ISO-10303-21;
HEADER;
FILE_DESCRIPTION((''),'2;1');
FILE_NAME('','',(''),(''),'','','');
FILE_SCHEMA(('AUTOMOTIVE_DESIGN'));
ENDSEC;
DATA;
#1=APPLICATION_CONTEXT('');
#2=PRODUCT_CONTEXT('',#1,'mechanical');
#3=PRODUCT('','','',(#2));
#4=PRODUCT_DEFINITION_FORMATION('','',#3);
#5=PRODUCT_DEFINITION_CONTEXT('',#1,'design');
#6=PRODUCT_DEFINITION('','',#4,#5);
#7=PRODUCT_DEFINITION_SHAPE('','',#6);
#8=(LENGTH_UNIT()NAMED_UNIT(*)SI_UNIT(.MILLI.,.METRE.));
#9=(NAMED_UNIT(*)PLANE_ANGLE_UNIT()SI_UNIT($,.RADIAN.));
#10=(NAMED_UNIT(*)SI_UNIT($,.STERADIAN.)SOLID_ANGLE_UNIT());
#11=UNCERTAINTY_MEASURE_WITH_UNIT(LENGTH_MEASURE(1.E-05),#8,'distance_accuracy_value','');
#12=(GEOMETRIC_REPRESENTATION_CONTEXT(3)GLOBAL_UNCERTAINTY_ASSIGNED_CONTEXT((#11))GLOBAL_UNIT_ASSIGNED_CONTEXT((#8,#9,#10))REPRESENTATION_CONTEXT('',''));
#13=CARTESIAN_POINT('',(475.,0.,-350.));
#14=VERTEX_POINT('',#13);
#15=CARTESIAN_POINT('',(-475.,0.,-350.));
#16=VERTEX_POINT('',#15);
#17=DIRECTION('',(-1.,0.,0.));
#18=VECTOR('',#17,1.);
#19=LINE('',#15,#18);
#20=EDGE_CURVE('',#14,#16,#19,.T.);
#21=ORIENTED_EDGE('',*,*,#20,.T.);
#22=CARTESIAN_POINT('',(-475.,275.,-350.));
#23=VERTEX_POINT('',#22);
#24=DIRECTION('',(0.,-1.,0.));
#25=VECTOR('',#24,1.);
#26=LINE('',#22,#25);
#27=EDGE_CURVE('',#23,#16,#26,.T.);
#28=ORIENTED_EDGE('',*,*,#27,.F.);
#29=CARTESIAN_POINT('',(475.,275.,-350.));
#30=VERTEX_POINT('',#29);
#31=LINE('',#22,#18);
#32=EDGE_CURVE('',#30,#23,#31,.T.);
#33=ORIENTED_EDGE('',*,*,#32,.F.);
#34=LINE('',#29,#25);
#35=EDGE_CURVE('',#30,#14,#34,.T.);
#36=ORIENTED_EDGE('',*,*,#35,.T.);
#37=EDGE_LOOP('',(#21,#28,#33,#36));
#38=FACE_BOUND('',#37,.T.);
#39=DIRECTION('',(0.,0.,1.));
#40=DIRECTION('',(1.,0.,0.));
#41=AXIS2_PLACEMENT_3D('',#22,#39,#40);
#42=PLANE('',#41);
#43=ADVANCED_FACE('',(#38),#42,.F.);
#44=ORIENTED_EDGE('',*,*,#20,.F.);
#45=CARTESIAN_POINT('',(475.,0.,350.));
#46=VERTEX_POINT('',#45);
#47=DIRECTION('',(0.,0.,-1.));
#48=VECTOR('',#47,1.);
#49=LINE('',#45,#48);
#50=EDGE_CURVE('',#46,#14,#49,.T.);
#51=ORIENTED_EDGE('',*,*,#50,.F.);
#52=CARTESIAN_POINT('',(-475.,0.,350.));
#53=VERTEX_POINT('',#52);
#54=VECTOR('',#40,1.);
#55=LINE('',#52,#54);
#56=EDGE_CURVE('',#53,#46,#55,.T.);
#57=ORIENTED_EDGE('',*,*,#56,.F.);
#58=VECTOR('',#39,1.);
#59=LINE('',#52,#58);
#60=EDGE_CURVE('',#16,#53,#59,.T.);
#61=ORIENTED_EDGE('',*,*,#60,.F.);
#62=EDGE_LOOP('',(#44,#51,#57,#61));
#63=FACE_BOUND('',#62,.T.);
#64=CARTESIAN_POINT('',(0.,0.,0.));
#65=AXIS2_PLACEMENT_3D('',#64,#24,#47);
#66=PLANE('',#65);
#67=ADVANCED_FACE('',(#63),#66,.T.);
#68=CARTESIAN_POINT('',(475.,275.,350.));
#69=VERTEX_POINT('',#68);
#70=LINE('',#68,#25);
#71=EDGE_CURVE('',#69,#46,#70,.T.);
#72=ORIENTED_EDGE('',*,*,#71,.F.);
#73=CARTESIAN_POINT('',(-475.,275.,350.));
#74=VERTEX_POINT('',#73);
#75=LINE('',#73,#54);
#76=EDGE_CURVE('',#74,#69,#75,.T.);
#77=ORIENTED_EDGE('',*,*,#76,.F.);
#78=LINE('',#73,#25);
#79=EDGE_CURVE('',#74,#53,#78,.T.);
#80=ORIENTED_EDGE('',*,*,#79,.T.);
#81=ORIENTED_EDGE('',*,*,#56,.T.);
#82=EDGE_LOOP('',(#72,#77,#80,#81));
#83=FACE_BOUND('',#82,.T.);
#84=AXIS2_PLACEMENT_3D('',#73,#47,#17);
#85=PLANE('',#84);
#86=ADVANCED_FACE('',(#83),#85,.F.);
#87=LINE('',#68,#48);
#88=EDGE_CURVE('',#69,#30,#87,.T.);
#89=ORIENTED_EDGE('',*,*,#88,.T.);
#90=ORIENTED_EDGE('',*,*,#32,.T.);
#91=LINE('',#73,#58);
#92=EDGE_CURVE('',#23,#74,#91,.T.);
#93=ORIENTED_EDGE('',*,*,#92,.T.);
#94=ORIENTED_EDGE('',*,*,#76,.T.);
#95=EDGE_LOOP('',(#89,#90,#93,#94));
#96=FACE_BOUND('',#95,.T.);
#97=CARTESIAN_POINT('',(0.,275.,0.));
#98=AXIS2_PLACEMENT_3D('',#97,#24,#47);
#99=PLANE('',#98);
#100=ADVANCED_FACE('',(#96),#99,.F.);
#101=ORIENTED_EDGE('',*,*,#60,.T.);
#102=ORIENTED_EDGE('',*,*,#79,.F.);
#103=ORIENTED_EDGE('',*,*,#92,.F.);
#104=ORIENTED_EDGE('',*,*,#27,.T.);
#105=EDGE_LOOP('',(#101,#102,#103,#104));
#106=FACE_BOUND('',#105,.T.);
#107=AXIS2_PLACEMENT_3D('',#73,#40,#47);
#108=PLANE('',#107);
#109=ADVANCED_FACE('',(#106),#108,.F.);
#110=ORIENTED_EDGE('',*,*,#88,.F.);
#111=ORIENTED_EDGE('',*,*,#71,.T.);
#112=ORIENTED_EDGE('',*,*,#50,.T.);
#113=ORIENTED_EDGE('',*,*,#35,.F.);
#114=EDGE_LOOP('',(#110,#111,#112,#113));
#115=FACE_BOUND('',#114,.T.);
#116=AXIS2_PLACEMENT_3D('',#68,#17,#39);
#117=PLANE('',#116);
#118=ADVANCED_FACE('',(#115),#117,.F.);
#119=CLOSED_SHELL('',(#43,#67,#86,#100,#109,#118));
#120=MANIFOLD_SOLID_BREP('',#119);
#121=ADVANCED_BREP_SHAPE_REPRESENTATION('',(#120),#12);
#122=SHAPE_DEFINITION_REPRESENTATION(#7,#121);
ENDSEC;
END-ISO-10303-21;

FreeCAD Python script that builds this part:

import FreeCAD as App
import Part
import Sketcher
Q = App.Units.Quantity

doc = App.newDocument("Part")
body = doc.addObject("PartDesign::Body", "Body")

sketch1 = body.newObject("Sketcher::SketchObject", "Sketch")
sketch1.AttachmentSupport = (doc.getObject("XZ_Plane"), [""])
sketch1.MapMode = "FlatFace"
sketch1.addGeometry([
    Part.LineSegment(App.Vector(-475, -350, 0), App.Vector(-475, 350, 0)),
    Part.LineSegment(App.Vector(-475, 350, 0), App.Vector(475, 350, 0)),
    Part.LineSegment(App.Vector(475, 350, 0), App.Vector(475, -350, 0)),
    Part.LineSegment(App.Vector(475, -350, 0), App.Vector(-475, -350, 0)),
], False)
sketch1.addConstraint([
    Sketcher.Constraint("Coincident", 0, 2, 1, 1),
    Sketcher.Constraint("Coincident", 1, 2, 2, 1),
    Sketcher.Constraint("Coincident", 2, 2, 3, 1),
    Sketcher.Constraint("Coincident", 3, 2, 0, 1),
    Sketcher.Constraint("Vertical", 0),
    Sketcher.Constraint("Horizontal", 1),
    Sketcher.Constraint("Vertical", 2),
    Sketcher.Constraint("Horizontal", 3),
    Sketcher.Constraint("Symmetric", 0, 2, 2, 2, -1, 1),
    Sketcher.Constraint("DistanceX", 1, 1, 1, 2, Q("950 mm")),
    Sketcher.Constraint("DistanceY", 0, 1, 0, 2, Q("700 mm")),
])
pad1 = body.newObject("PartDesign::Pad", "Pad")
pad1.Profile = sketch1
pad1.Length = 275
pad1.Reversed = True

doc.recompute()
